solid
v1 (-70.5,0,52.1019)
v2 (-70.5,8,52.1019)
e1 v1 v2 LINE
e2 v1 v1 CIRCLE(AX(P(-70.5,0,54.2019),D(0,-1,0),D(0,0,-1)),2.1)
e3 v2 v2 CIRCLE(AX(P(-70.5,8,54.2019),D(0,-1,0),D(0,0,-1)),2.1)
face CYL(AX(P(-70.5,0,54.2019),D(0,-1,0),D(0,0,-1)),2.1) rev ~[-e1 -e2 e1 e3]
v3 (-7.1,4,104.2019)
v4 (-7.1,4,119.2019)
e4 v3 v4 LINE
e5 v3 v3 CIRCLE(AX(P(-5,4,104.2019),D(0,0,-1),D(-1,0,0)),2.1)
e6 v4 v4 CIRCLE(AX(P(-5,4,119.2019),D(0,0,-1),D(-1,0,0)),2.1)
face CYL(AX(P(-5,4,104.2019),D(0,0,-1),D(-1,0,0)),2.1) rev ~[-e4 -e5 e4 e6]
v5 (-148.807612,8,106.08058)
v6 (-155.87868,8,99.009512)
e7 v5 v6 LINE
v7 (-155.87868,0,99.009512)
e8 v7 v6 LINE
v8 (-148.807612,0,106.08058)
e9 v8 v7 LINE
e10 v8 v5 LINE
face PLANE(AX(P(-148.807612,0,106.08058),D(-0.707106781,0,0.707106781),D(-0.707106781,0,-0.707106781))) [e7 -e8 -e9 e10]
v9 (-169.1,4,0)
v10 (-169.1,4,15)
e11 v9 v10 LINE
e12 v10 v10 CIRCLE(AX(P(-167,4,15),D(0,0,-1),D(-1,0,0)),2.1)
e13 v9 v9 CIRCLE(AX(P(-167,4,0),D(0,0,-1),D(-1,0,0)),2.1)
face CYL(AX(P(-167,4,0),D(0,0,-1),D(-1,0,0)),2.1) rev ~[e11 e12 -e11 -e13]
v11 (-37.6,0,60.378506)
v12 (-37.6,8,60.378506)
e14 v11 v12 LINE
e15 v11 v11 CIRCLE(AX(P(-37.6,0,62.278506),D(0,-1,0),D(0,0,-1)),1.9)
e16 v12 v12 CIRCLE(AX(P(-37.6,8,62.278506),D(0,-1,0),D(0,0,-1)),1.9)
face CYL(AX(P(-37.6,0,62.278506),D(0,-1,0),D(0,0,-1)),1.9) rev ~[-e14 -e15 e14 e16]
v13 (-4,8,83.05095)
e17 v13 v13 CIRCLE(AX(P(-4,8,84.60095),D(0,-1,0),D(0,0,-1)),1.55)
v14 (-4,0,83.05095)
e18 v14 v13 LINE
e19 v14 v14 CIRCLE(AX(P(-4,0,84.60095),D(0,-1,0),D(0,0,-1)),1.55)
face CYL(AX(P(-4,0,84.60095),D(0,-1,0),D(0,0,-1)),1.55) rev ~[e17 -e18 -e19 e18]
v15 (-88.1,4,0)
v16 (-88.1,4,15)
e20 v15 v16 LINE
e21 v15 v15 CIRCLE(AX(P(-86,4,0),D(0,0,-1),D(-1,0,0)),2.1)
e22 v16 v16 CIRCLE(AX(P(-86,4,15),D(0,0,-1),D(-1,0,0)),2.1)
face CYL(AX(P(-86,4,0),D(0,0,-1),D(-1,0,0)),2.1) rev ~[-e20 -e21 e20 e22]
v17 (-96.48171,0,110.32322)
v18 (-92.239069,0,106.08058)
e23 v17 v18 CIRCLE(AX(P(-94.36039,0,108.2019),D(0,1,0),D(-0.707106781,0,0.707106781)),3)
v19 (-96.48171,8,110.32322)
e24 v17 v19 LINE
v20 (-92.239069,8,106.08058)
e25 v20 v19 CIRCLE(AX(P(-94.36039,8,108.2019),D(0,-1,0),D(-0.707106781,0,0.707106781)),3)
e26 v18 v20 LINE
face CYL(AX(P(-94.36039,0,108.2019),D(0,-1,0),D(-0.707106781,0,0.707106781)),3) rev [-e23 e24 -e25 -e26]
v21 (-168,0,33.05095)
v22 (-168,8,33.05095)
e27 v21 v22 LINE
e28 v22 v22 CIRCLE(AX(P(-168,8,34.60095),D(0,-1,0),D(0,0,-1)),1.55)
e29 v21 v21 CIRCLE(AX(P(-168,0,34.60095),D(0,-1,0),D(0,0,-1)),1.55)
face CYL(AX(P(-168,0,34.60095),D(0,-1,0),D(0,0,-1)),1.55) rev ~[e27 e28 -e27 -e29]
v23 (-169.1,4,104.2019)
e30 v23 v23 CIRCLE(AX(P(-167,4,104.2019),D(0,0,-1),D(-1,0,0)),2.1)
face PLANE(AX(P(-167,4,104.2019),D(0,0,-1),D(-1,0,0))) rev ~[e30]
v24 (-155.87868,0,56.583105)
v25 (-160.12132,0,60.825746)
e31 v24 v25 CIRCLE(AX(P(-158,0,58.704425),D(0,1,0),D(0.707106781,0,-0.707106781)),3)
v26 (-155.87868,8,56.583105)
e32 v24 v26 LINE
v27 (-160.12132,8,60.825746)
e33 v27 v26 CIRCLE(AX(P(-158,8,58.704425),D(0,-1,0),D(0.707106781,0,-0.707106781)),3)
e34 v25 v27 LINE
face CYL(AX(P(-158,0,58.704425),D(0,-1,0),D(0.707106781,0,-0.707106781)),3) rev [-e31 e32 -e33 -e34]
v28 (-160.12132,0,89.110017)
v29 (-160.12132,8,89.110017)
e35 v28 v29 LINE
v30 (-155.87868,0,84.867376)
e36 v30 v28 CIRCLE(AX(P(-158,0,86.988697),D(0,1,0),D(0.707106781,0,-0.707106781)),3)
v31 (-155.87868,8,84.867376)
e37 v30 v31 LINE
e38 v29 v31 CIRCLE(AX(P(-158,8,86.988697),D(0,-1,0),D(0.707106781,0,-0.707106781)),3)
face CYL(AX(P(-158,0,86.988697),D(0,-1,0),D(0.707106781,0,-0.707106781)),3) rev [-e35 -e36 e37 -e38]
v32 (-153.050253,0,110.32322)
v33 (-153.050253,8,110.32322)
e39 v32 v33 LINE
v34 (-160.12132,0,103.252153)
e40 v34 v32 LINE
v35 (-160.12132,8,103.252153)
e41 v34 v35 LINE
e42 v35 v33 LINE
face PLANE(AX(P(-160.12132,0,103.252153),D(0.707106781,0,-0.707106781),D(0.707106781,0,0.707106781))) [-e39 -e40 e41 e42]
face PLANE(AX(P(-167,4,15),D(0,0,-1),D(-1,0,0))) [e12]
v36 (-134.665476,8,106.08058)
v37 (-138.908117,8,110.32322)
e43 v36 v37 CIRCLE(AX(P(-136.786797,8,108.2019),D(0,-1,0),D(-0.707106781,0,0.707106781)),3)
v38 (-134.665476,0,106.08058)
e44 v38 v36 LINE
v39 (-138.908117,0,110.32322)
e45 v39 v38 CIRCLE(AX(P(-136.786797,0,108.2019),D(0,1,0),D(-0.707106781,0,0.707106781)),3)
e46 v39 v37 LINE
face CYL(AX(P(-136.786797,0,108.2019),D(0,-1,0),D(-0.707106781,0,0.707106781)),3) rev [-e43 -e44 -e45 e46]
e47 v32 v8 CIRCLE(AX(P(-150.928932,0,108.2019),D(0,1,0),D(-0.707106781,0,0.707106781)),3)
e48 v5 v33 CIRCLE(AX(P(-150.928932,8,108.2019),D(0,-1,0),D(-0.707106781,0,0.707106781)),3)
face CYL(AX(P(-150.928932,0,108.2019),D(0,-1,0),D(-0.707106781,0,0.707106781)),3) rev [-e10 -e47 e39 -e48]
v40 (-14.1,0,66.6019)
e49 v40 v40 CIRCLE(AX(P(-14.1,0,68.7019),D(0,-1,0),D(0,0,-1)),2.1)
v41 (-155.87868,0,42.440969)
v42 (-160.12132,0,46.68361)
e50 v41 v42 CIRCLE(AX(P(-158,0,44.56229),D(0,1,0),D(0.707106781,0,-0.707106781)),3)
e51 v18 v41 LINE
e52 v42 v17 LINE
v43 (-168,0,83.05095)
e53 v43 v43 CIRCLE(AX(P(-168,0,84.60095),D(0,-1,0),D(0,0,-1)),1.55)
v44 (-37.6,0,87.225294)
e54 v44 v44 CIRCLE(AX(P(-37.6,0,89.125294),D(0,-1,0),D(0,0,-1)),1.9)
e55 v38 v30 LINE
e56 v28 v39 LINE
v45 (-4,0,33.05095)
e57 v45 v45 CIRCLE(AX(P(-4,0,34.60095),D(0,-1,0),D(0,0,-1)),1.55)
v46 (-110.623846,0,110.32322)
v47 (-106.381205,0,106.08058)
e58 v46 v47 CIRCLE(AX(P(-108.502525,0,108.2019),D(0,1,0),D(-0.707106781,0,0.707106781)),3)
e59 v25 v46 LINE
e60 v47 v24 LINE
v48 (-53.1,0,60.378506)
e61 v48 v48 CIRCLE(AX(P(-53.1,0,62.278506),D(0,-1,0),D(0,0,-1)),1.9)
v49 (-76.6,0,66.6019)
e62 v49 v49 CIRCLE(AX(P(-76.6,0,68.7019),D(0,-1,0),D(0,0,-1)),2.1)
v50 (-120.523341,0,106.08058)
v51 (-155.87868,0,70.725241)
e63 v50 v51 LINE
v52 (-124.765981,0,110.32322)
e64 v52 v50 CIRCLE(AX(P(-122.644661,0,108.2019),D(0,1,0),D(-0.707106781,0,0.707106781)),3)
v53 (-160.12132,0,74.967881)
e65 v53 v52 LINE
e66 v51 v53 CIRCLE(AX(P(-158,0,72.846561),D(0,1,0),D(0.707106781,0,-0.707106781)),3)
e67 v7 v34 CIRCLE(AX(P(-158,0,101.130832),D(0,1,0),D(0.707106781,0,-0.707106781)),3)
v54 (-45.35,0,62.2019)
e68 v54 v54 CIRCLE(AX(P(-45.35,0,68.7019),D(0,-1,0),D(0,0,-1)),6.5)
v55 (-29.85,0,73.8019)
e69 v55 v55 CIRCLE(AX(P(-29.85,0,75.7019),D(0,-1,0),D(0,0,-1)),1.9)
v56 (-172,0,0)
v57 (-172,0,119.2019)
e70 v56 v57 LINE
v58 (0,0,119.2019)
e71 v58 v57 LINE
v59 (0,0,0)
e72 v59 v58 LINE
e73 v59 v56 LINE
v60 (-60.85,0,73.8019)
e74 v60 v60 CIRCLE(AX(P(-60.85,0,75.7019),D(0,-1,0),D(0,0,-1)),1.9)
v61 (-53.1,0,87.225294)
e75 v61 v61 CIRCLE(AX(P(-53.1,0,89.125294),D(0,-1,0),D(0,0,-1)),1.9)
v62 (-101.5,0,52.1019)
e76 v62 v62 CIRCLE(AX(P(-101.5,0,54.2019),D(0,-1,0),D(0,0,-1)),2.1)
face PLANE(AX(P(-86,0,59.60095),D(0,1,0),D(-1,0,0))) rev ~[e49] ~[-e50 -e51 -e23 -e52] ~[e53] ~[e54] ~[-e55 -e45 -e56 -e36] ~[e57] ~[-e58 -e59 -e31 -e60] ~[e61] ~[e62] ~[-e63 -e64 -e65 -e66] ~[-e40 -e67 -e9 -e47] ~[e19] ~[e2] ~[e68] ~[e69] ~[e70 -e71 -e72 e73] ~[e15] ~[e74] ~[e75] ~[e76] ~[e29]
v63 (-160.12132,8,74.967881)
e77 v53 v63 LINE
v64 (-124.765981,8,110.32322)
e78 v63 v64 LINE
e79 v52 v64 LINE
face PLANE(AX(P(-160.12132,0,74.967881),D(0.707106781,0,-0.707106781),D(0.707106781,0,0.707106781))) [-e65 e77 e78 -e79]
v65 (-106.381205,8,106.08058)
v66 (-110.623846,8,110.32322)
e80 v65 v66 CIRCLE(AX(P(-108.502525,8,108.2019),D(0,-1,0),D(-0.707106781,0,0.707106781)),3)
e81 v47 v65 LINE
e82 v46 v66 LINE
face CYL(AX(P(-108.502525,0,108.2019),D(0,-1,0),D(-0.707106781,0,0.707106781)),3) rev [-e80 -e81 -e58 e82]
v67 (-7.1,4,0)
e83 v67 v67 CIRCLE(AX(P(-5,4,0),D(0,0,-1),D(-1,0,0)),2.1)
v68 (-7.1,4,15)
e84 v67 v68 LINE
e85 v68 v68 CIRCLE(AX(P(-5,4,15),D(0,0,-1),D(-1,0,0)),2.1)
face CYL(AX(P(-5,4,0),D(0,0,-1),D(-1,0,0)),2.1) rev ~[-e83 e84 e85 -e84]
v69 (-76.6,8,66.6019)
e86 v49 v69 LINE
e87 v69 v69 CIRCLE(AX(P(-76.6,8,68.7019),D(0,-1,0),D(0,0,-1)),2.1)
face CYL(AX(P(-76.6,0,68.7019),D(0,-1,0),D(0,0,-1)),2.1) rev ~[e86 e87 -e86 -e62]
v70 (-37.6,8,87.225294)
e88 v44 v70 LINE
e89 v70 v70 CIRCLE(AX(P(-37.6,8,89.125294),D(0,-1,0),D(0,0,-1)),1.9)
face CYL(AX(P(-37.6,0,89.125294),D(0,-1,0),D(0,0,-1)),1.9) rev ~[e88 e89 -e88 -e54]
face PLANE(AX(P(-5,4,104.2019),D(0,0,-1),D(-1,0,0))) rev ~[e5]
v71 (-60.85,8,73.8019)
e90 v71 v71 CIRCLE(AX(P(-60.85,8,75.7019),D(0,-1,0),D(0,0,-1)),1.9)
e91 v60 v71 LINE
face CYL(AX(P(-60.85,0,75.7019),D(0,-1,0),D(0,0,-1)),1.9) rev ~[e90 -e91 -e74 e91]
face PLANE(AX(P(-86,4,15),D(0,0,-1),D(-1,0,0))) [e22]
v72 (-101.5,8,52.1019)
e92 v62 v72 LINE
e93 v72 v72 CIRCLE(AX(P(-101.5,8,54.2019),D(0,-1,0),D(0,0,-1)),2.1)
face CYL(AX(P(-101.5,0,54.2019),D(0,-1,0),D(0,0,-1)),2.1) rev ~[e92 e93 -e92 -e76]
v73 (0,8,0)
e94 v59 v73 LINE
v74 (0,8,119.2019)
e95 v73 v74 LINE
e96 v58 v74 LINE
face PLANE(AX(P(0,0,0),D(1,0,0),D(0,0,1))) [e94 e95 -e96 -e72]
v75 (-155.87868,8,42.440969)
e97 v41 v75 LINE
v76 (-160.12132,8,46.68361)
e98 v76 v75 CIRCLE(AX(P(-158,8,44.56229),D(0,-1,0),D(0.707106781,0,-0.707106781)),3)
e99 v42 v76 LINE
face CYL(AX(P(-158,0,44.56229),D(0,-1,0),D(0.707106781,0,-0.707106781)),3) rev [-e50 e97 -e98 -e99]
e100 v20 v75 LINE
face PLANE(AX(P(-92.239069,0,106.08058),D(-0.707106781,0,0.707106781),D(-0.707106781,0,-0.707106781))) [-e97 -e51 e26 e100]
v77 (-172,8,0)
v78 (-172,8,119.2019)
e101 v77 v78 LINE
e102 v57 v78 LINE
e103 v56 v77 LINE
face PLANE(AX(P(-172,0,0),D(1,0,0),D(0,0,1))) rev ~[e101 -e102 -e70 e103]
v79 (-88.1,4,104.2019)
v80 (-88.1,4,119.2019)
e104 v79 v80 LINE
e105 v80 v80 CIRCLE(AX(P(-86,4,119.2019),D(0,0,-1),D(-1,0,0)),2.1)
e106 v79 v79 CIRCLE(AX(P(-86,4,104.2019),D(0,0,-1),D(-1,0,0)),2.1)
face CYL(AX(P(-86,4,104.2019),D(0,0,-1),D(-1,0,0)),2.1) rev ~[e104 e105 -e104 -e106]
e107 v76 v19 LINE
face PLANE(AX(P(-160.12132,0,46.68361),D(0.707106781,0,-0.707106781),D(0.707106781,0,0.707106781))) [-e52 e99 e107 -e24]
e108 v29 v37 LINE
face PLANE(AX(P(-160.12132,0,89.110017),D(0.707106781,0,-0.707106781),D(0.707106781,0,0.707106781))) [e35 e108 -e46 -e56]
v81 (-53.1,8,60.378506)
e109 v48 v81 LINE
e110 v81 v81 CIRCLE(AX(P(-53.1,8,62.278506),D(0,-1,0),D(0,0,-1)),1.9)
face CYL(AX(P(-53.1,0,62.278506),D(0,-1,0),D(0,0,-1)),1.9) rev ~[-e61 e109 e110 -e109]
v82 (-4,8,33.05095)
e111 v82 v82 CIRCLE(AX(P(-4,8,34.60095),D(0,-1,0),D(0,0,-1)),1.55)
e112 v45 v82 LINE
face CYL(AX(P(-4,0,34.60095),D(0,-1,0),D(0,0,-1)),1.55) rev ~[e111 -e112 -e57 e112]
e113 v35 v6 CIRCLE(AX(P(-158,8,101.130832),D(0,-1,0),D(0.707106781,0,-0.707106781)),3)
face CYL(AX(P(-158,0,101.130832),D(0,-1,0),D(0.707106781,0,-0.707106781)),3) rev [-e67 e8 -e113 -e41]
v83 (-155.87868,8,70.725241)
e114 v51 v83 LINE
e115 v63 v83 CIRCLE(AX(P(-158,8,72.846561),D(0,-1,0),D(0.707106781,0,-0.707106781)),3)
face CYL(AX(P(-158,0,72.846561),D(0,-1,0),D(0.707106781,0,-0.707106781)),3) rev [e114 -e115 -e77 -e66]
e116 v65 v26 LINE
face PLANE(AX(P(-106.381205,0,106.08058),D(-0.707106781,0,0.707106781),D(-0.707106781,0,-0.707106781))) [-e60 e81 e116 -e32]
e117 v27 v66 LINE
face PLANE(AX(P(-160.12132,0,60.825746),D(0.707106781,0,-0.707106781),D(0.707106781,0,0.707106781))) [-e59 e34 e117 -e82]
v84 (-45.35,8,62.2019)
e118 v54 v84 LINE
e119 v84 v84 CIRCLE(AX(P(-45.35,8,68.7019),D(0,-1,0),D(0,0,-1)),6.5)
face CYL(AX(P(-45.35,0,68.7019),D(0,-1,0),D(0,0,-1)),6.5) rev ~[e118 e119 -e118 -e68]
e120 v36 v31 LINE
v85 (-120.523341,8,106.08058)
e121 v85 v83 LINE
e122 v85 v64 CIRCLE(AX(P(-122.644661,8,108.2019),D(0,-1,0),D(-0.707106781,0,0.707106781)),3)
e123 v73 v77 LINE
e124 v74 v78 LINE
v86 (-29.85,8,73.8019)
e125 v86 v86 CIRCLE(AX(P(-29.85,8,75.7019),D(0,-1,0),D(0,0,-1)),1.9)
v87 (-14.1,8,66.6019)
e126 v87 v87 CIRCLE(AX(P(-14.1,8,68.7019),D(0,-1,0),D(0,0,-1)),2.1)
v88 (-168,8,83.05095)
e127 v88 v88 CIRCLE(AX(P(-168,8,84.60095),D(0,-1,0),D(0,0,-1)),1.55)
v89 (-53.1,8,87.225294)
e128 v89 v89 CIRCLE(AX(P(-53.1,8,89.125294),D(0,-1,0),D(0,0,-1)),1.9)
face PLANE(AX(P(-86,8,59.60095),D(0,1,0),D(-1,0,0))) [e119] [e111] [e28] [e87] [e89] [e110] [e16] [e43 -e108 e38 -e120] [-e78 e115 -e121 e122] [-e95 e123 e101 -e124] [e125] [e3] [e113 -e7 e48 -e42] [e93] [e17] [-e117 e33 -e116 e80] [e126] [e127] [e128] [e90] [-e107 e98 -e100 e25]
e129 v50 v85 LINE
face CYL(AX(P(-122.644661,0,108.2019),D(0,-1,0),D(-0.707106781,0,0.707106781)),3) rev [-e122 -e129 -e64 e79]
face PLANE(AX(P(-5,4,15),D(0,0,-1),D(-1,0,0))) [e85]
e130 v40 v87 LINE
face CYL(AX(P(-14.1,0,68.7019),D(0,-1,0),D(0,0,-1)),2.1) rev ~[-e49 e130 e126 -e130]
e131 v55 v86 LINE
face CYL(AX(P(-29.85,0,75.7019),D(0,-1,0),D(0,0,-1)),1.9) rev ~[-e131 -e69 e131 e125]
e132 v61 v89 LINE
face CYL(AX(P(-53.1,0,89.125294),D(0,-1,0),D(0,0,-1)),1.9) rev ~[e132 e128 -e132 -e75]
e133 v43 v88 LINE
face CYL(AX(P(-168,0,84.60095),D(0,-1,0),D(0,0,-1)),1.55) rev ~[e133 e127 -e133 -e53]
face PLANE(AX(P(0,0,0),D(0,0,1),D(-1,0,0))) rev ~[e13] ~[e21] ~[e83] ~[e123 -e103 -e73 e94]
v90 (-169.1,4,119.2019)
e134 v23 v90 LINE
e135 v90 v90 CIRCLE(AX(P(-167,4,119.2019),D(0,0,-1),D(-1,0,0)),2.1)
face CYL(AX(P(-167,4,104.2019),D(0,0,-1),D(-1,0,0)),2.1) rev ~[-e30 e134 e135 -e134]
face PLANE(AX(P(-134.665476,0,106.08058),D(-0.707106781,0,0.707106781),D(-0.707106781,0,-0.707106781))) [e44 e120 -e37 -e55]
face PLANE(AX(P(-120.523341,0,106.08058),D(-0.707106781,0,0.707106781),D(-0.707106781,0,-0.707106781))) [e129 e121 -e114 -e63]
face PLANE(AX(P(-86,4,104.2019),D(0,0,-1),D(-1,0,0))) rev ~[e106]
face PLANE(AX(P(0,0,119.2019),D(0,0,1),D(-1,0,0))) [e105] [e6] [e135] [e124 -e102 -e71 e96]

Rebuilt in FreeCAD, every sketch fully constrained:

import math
import FreeCAD as App
import Part
import Sketcher
from FreeCAD import Vector
Q = App.Units.Quantity

doc = App.newDocument("Part")
body = doc.addObject("PartDesign::Body", "Body")

sketch1 = body.newObject("Sketcher::SketchObject", "Sketch")
sketch1.AttachmentSupport = (doc.getObject("XZ_Plane"), [""])
sketch1.MapMode = "FlatFace"
sketch1.addGeometry([
    Part.LineSegment(Vector(0, 119, 0), Vector(0, 0, 0)),
    Part.LineSegment(Vector(0, 0, 0), Vector(-172, 0, 0)),
    Part.LineSegment(Vector(-172, 0, 0), Vector(-172, 119, 0)),
    Part.LineSegment(Vector(-172, 119, 0), Vector(0, 119, 0)),
], False)
sketch1.addConstraint([
    Sketcher.Constraint("Coincident", 0, 2, 1, 1),
    Sketcher.Constraint("Coincident", 1, 2, 2, 1),
    Sketcher.Constraint("Coincident", 2, 2, 3, 1),
    Sketcher.Constraint("Coincident", 3, 2, 0, 1),
    Sketcher.Constraint("Vertical", 0),
    Sketcher.Constraint("Horizontal", 1),
    Sketcher.Constraint("Vertical", 2),
    Sketcher.Constraint("Horizontal", 3),
    Sketcher.Constraint("Coincident", 0, 2, -1, 1),
    Sketcher.Constraint("DistanceX", 1, 2, 1, 1, Q("172 mm")),
    Sketcher.Constraint("DistanceY", 0, 2, 0, 1, Q("119.2019 mm")),
])
pad1 = body.newObject("PartDesign::Pad", "Pad")
pad1.Profile = sketch1
pad1.Length = 8
pad1.Reversed = True

sketch2 = body.newObject("Sketcher::SketchObject", "Sketch001")
sketch2.AttachmentSupport = (doc.getObject("XZ_Plane"), [""])
sketch2.MapMode = "FlatFace"
sketch2.addGeometry(Part.Circle(Vector(-45, 69, 0), Vector(0, 0, 1), 6), False)
sketch2.addConstraint([
    Sketcher.Constraint("Diameter", 0, Q("13 mm")),
    Sketcher.Constraint("DistanceX", 0, 3, -1, 1, Q("45.35 mm")),
    Sketcher.Constraint("DistanceY", -1, 1, 0, 3, Q("68.7019 mm")),
])
pocket1 = body.newObject("PartDesign::Pocket", "Pocket")
pocket1.Profile = sketch2
pocket1.Type = "UpToFirst"

sketch3 = body.newObject("Sketcher::SketchObject", "Sketch002")
sketch3.AttachmentSupport = (doc.getObject("XZ_Plane"), [""])
sketch3.MapMode = "FlatFace"
sketch3.addGeometry(Part.Circle(Vector(-60.9, 75.7, 0), Vector(0, 0, 1), 1.9), False)
sketch3.addConstraint([
    Sketcher.Constraint("Diameter", 0, Q("3.8 mm")),
    Sketcher.Constraint("DistanceX", 0, 3, -1, 1, Q("60.85 mm")),
    Sketcher.Constraint("DistanceY", -1, 1, 0, 3, Q("75.7019 mm")),
])
pocket2 = body.newObject("PartDesign::Pocket", "Pocket001")
pocket2.Profile = sketch3
pocket2.Type = "UpToFirst"

sketch4 = body.newObject("Sketcher::SketchObject", "Sketch003")
sketch4.AttachmentSupport = (doc.getObject("XZ_Plane"), [""])
sketch4.MapMode = "FlatFace"
sketch4.addGeometry(Part.Circle(Vector(-53.1, 89.1, 0), Vector(0, 0, 1), 1.9), False)
sketch4.addConstraint([
    Sketcher.Constraint("Diameter", 0, Q("3.8 mm")),
    Sketcher.Constraint("DistanceX", 0, 3, -1, 1, Q("53.1 mm")),
    Sketcher.Constraint("DistanceY", -1, 1, 0, 3, Q("89.125294 mm")),
])
pocket3 = body.newObject("PartDesign::Pocket", "Pocket002")
pocket3.Profile = sketch4
pocket3.Type = "UpToFirst"

sketch5 = body.newObject("Sketcher::SketchObject", "Sketch004")
sketch5.AttachmentSupport = (doc.getObject("XZ_Plane"), [""])
sketch5.MapMode = "FlatFace"
sketch5.addGeometry(Part.Circle(Vector(-37.6, 89.1, 0), Vector(0, 0, 1), 1.9), False)
sketch5.addConstraint([
    Sketcher.Constraint("Diameter", 0, Q("3.8 mm")),
    Sketcher.Constraint("DistanceX", 0, 3, -1, 1, Q("37.6 mm")),
    Sketcher.Constraint("DistanceY", -1, 1, 0, 3, Q("89.125294 mm")),
])
pocket4 = body.newObject("PartDesign::Pocket", "Pocket003")
pocket4.Profile = sketch5
pocket4.Type = "UpToFirst"

sketch6 = body.newObject("Sketcher::SketchObject", "Sketch005")
sketch6.AttachmentSupport = (doc.getObject("XZ_Plane"), [""])
sketch6.MapMode = "FlatFace"
sketch6.addGeometry(Part.Circle(Vector(-29.9, 75.7, 0), Vector(0, 0, 1), 1.9), False)
sketch6.addConstraint([
    Sketcher.Constraint("Diameter", 0, Q("3.8 mm")),
    Sketcher.Constraint("DistanceX", 0, 3, -1, 1, Q("29.85 mm")),
    Sketcher.Constraint("DistanceY", -1, 1, 0, 3, Q("75.7019 mm")),
])
pocket5 = body.newObject("PartDesign::Pocket", "Pocket004")
pocket5.Profile = sketch6
pocket5.Type = "UpToFirst"

sketch7 = body.newObject("Sketcher::SketchObject", "Sketch006")
sketch7.AttachmentSupport = (doc.getObject("XZ_Plane"), [""])
sketch7.MapMode = "FlatFace"
sketch7.addGeometry(Part.Circle(Vector(-37.6, 62.3, 0), Vector(0, 0, 1), 1.9), False)
sketch7.addConstraint([
    Sketcher.Constraint("Diameter", 0, Q("3.8 mm")),
    Sketcher.Constraint("DistanceX", 0, 3, -1, 1, Q("37.6 mm")),
    Sketcher.Constraint("DistanceY", -1, 1, 0, 3, Q("62.278506 mm")),
])
pocket6 = body.newObject("PartDesign::Pocket", "Pocket005")
pocket6.Profile = sketch7
pocket6.Type = "UpToFirst"

sketch8 = body.newObject("Sketcher::SketchObject", "Sketch007")
sketch8.AttachmentSupport = (doc.getObject("XZ_Plane"), [""])
sketch8.MapMode = "FlatFace"
sketch8.addGeometry(Part.Circle(Vector(-53.1, 62.3, 0), Vector(0, 0, 1), 1.9), False)
sketch8.addConstraint([
    Sketcher.Constraint("Diameter", 0, Q("3.8 mm")),
    Sketcher.Constraint("DistanceX", 0, 3, -1, 1, Q("53.1 mm")),
    Sketcher.Constraint("DistanceY", -1, 1, 0, 3, Q("62.278506 mm")),
])
pocket7 = body.newObject("PartDesign::Pocket", "Pocket006")
pocket7.Profile = sketch8
pocket7.Type = "UpToFirst"

sketch9 = body.newObject("Sketcher::SketchObject", "Sketch008")
sketch9.AttachmentSupport = (doc.getObject("XZ_Plane"), [""])
sketch9.MapMode = "FlatFace"
sketch9.addGeometry(Part.Circle(Vector(-76.6, 68.7, 0), Vector(0, 0, 1), 2.1), False)
sketch9.addConstraint([
    Sketcher.Constraint("Diameter", 0, Q("4.2 mm")),
    Sketcher.Constraint("DistanceX", 0, 3, -1, 1, Q("76.6 mm")),
    Sketcher.Constraint("DistanceY", -1, 1, 0, 3, Q("68.7019 mm")),
])
pocket8 = body.newObject("PartDesign::Pocket", "Pocket007")
pocket8.Profile = sketch9
pocket8.Type = "UpToFirst"

sketch10 = body.newObject("Sketcher::SketchObject", "Sketch009")
sketch10.AttachmentSupport = (doc.getObject("XZ_Plane"), [""])
sketch10.MapMode = "FlatFace"
sketch10.addGeometry(Part.Circle(Vector(-14.1, 68.7, 0), Vector(0, 0, 1), 2.1), False)
sketch10.addConstraint([
    Sketcher.Constraint("Diameter", 0, Q("4.2 mm")),
    Sketcher.Constraint("DistanceX", 0, 3, -1, 1, Q("14.1 mm")),
    Sketcher.Constraint("DistanceY", -1, 1, 0, 3, Q("68.7019 mm")),
])
pocket9 = body.newObject("PartDesign::Pocket", "Pocket008")
pocket9.Profile = sketch10
pocket9.Type = "UpToFirst"

sketch11 = body.newObject("Sketcher::SketchObject", "Sketch010")
sketch11.AttachmentSupport = (doc.getObject("XZ_Plane"), [""])
sketch11.MapMode = "FlatFace"
sketch11.addGeometry(Part.Circle(Vector(-70.5, 54.2, 0), Vector(0, 0, 1), 2.1), False)
sketch11.addConstraint([
    Sketcher.Constraint("Diameter", 0, Q("4.2 mm")),
    Sketcher.Constraint("DistanceX", 0, 3, -1, 1, Q("70.5 mm")),
    Sketcher.Constraint("DistanceY", -1, 1, 0, 3, Q("54.2019 mm")),
])
pocket10 = body.newObject("PartDesign::Pocket", "Pocket009")
pocket10.Profile = sketch11
pocket10.Type = "UpToFirst"

sketch12 = body.newObject("Sketcher::SketchObject", "Sketch011")
sketch12.AttachmentSupport = (doc.getObject("XZ_Plane"), [""])
sketch12.MapMode = "FlatFace"
sketch12.addGeometry(Part.Circle(Vector(-101.5, 54.2, 0), Vector(0, 0, 1), 2.1), False)
sketch12.addConstraint([
    Sketcher.Constraint("Diameter", 0, Q("4.2 mm")),
    Sketcher.Constraint("DistanceX", 0, 3, -1, 1, Q("101.5 mm")),
    Sketcher.Constraint("DistanceY", -1, 1, 0, 3, Q("54.2019 mm")),
])
pocket11 = body.newObject("PartDesign::Pocket", "Pocket010")
pocket11.Profile = sketch12
pocket11.Type = "UpToFirst"

sketch13 = body.newObject("Sketcher::SketchObject", "Sketch012")
sketch13.AttachmentSupport = (doc.getObject("XZ_Plane"), [""])
sketch13.MapMode = "FlatFace"
sketch13.addGeometry([
    Part.LineSegment(Vector(-138.9, 110.3, 0), Vector(-160.1, 89.1, 0)),
    Part.ArcOfCircle(Part.Circle(Vector(-158, 87, 0), Vector(0, 0, 1), 3), math.radians(135), math.radians(315)),
    Part.LineSegment(Vector(-155.9, 84.9, 0), Vector(-134.7, 106.1, 0)),
    Part.ArcOfCircle(Part.Circle(Vector(-136.8, 108.2, 0), Vector(0, 0, 1), 3), math.radians(-45), math.radians(135)),
], False)
sketch13.addConstraint([
    Sketcher.Constraint("Tangent", 0, 2, 1, 1),
    Sketcher.Constraint("Tangent", 1, 2, 2, 1),
    Sketcher.Constraint("Tangent", 2, 2, 3, 1),
    Sketcher.Constraint("Tangent", 3, 2, 0, 1),
    Sketcher.Constraint("Equal", 1, 3),
    Sketcher.Constraint("Radius", 1, Q("3 mm")),
    Sketcher.Constraint("Angle", 0, Q("-135 deg")),
    Sketcher.Constraint("Distance", 0, Q("30 mm")),
    Sketcher.Constraint("DistanceX", 1, 3, -1, 1, Q("158 mm")),
    Sketcher.Constraint("DistanceY", -1, 1, 3, 3, Q("108.2019 mm")),
])
pocket12 = body.newObject("PartDesign::Pocket", "Pocket011")
pocket12.Profile = sketch13
pocket12.Type = "UpToFirst"

sketch14 = body.newObject("Sketcher::SketchObject", "Sketch013")
sketch14.AttachmentSupport = (doc.getObject("XZ_Plane"), [""])
sketch14.MapMode = "FlatFace"
sketch14.addGeometry([
    Part.LineSegment(Vector(-124.8, 110.3, 0), Vector(-160.1, 75, 0)),
    Part.ArcOfCircle(Part.Circle(Vector(-158, 72.8, 0), Vector(0, 0, 1), 3), math.radians(135), math.radians(315)),
    Part.LineSegment(Vector(-155.9, 70.7, 0), Vector(-120.5, 106.1, 0)),
    Part.ArcOfCircle(Part.Circle(Vector(-122.6, 108.2, 0), Vector(0, 0, 1), 3), math.radians(-45), math.radians(135)),
], False)
sketch14.addConstraint([
    Sketcher.Constraint("Tangent", 0, 2, 1, 1),
    Sketcher.Constraint("Tangent", 1, 2, 2, 1),
    Sketcher.Constraint("Tangent", 2, 2, 3, 1),
    Sketcher.Constraint("Tangent", 3, 2, 0, 1),
    Sketcher.Constraint("Equal", 1, 3),
    Sketcher.Constraint("Radius", 1, Q("3 mm")),
    Sketcher.Constraint("Angle", 0, Q("-135 deg")),
    Sketcher.Constraint("Distance", 0, Q("50 mm")),
    Sketcher.Constraint("DistanceX", 1, 3, -1, 1, Q("158 mm")),
    Sketcher.Constraint("DistanceY", -1, 1, 3, 3, Q("108.2019 mm")),
])
pocket13 = body.newObject("PartDesign::Pocket", "Pocket012")
pocket13.Profile = sketch14
pocket13.Type = "UpToFirst"

sketch15 = body.newObject("Sketcher::SketchObject", "Sketch014")
sketch15.AttachmentSupport = (doc.getObject("XZ_Plane"), [""])
sketch15.MapMode = "FlatFace"
sketch15.addGeometry([
    Part.LineSegment(Vector(-110.6, 110.3, 0), Vector(-160.1, 60.8, 0)),
    Part.ArcOfCircle(Part.Circle(Vector(-158, 58.7, 0), Vector(0, 0, 1), 3), math.radians(135), math.radians(315)),
    Part.LineSegment(Vector(-155.9, 56.6, 0), Vector(-106.4, 106.1, 0)),
    Part.ArcOfCircle(Part.Circle(Vector(-108.5, 108.2, 0), Vector(0, 0, 1), 3), math.radians(-45), math.radians(135)),
], False)
sketch15.addConstraint([
    Sketcher.Constraint("Tangent", 0, 2, 1, 1),
    Sketcher.Constraint("Tangent", 1, 2, 2, 1),
    Sketcher.Constraint("Tangent", 2, 2, 3, 1),
    Sketcher.Constraint("Tangent", 3, 2, 0, 1),
    Sketcher.Constraint("Equal", 1, 3),
    Sketcher.Constraint("Radius", 1, Q("3 mm")),
    Sketcher.Constraint("Angle", 0, Q("-135 deg")),
    Sketcher.Constraint("Distance", 0, Q("70 mm")),
    Sketcher.Constraint("DistanceX", 1, 3, -1, 1, Q("158 mm")),
    Sketcher.Constraint("DistanceY", -1, 1, 3, 3, Q("108.2019 mm")),
])
pocket14 = body.newObject("PartDesign::Pocket", "Pocket013")
pocket14.Profile = sketch15
pocket14.Type = "UpToFirst"

sketch16 = body.newObject("Sketcher::SketchObject", "Sketch015")
sketch16.AttachmentSupport = (doc.getObject("XZ_Plane"), [""])
sketch16.MapMode = "FlatFace"
sketch16.addGeometry([
    Part.LineSegment(Vector(-96.5, 110.3, 0), Vector(-160.1, 46.7, 0)),
    Part.ArcOfCircle(Part.Circle(Vector(-158, 44.6, 0), Vector(0, 0, 1), 3), math.radians(135), math.radians(315)),
    Part.LineSegment(Vector(-155.9, 42.4, 0), Vector(-92.2, 106.1, 0)),
    Part.ArcOfCircle(Part.Circle(Vector(-94.4, 108.2, 0), Vector(0, 0, 1), 3), math.radians(-45), math.radians(135)),
], False)
sketch16.addConstraint([
    Sketcher.Constraint("Tangent", 0, 2, 1, 1),
    Sketcher.Constraint("Tangent", 1, 2, 2, 1),
    Sketcher.Constraint("Tangent", 2, 2, 3, 1),
    Sketcher.Constraint("Tangent", 3, 2, 0, 1),
    Sketcher.Constraint("Equal", 1, 3),
    Sketcher.Constraint("Radius", 1, Q("3 mm")),
    Sketcher.Constraint("Angle", 0, Q("-135 deg")),
    Sketcher.Constraint("Distance", 0, Q("90 mm")),
    Sketcher.Constraint("DistanceX", 1, 3, -1, 1, Q("158 mm")),
    Sketcher.Constraint("DistanceY", -1, 1, 3, 3, Q("108.2019 mm")),
])
pocket15 = body.newObject("PartDesign::Pocket", "Pocket014")
pocket15.Profile = sketch16
pocket15.Type = "UpToFirst"

sketch17 = body.newObject("Sketcher::SketchObject", "Sketch016")
sketch17.AttachmentSupport = (doc.getObject("XZ_Plane"), [""])
sketch17.MapMode = "FlatFace"
sketch17.addGeometry([
    Part.LineSegment(Vector(-153.1, 110.3, 0), Vector(-160.1, 103.3, 0)),
    Part.ArcOfCircle(Part.Circle(Vector(-158, 101.1, 0), Vector(0, 0, 1), 3), math.radians(135), math.radians(315)),
    Part.LineSegment(Vector(-155.9, 99, 0), Vector(-148.8, 106.1, 0)),
    Part.ArcOfCircle(Part.Circle(Vector(-150.9, 108.2, 0), Vector(0, 0, 1), 3), math.radians(-45), math.radians(135)),
], False)
sketch17.addConstraint([
    Sketcher.Constraint("Tangent", 0, 2, 1, 1),
    Sketcher.Constraint("Tangent", 1, 2, 2, 1),
    Sketcher.Constraint("Tangent", 2, 2, 3, 1),
    Sketcher.Constraint("Tangent", 3, 2, 0, 1),
    Sketcher.Constraint("Equal", 1, 3),
    Sketcher.Constraint("Radius", 1, Q("3 mm")),
    Sketcher.Constraint("Angle", 0, Q("-135 deg")),
    Sketcher.Constraint("Distance", 0, Q("10 mm")),
    Sketcher.Constraint("DistanceX", 1, 3, -1, 1, Q("158 mm")),
    Sketcher.Constraint("DistanceY", -1, 1, 3, 3, Q("108.2019 mm")),
])
pocket16 = body.newObject("PartDesign::Pocket", "Pocket015")
pocket16.Profile = sketch17
pocket16.Type = "UpToFirst"

sketch18 = body.newObject("Sketcher::SketchObject", "Sketch017")
sketch18.AttachmentSupport = (doc.getObject("XY_Plane"), [""])
sketch18.MapMode = "FlatFace"
sketch18.addGeometry([
    Part.Circle(Vector(-5, 4, 0), Vector(0, 0, 1), 2.1),
    Part.Circle(Vector(-167, 4, 0), Vector(0, 0, 1), 2.1),
    Part.Circle(Vector(-86, 4, 0), Vector(0, 0, 1), 2.1),
], False)
sketch18.addConstraint([
    Sketcher.Constraint("Equal", 0, 1),
    Sketcher.Constraint("Equal", 1, 2),
    Sketcher.Constraint("Horizontal", 0, 3, 1, 3),
    Sketcher.Constraint("Horizontal", 1, 3, 2, 3),
    Sketcher.Constraint("Diameter", 0, Q("4.2 mm")),
    Sketcher.Constraint("DistanceX", 0, 3, -1, 1, Q("5 mm")),
    Sketcher.Constraint("DistanceY", -1, 1, 0, 3, Q("4 mm")),
    Sketcher.Constraint("DistanceX", 1, 3, -1, 1, Q("167 mm")),
    Sketcher.Constraint("DistanceX", 2, 3, -1, 1, Q("86 mm")),
])
pocket17 = body.newObject("PartDesign::Pocket", "Pocket016")
pocket17.Profile = sketch18
pocket17.Length = 15
pocket17.Reversed = True

sketch19 = body.newObject("Sketcher::SketchObject", "Sketch018")
sketch19.AttachmentSupport = (doc.getObject("XY_Plane"), [""])
sketch19.MapMode = "FlatFace"
sketch19.AttachmentOffset = App.Placement(Vector(0, 0, 104.2019), App.Rotation())
sketch19.addGeometry([
    Part.Circle(Vector(-5, 4, 0), Vector(0, 0, 1), 2.1),
    Part.Circle(Vector(-167, 4, 0), Vector(0, 0, 1), 2.1),
    Part.Circle(Vector(-86, 4, 0), Vector(0, 0, 1), 2.1),
], False)
sketch19.addConstraint([
    Sketcher.Constraint("Equal", 0, 1),
    Sketcher.Constraint("Equal", 1, 2),
    Sketcher.Constraint("Horizontal", 0, 3, 1, 3),
    Sketcher.Constraint("Horizontal", 1, 3, 2, 3),
    Sketcher.Constraint("Diameter", 0, Q("4.2 mm")),
    Sketcher.Constraint("DistanceX", 0, 3, -1, 1, Q("5 mm")),
    Sketcher.Constraint("DistanceY", -1, 1, 0, 3, Q("4 mm")),
    Sketcher.Constraint("DistanceX", 1, 3, -1, 1, Q("167 mm")),
    Sketcher.Constraint("DistanceX", 2, 3, -1, 1, Q("86 mm")),
])
pocket18 = body.newObject("PartDesign::Pocket", "Pocket017")
pocket18.Profile = sketch19
pocket18.Length = 15
pocket18.Reversed = True

sketch20 = body.newObject("Sketcher::SketchObject", "Sketch019")
sketch20.AttachmentSupport = (doc.getObject("XZ_Plane"), [""])
sketch20.MapMode = "FlatFace"
sketch20.addGeometry(Part.Circle(Vector(-168, 84.6, 0), Vector(0, 0, 1), 1.6), False)
sketch20.addConstraint([
    Sketcher.Constraint("Diameter", 0, Q("3.1 mm")),
    Sketcher.Constraint("DistanceX", 0, 3, -1, 1, Q("168 mm")),
    Sketcher.Constraint("DistanceY", -1, 1, 0, 3, Q("84.60095 mm")),
])
pocket19 = body.newObject("PartDesign::Pocket", "Pocket018")
pocket19.Profile = sketch20
pocket19.Type = "UpToFirst"

sketch21 = body.newObject("Sketcher::SketchObject", "Sketch020")
sketch21.AttachmentSupport = (doc.getObject("XZ_Plane"), [""])
sketch21.MapMode = "FlatFace"
sketch21.addGeometry(Part.Circle(Vector(-168, 34.6, 0), Vector(0, 0, 1), 1.6), False)
sketch21.addConstraint([
    Sketcher.Constraint("Diameter", 0, Q("3.1 mm")),
    Sketcher.Constraint("DistanceX", 0, 3, -1, 1, Q("168 mm")),
    Sketcher.Constraint("DistanceY", -1, 1, 0, 3, Q("34.60095 mm")),
])
pocket20 = body.newObject("PartDesign::Pocket", "Pocket019")
pocket20.Profile = sketch21
pocket20.Type = "UpToFirst"

sketch22 = body.newObject("Sketcher::SketchObject", "Sketch021")
sketch22.AttachmentSupport = (doc.getObject("XZ_Plane"), [""])
sketch22.MapMode = "FlatFace"
sketch22.addGeometry(Part.Circle(Vector(-4, 34.6, 0), Vector(0, 0, 1), 1.6), False)
sketch22.addConstraint([
    Sketcher.Constraint("Diameter", 0, Q("3.1 mm")),
    Sketcher.Constraint("DistanceX", 0, 3, -1, 1, Q("4 mm")),
    Sketcher.Constraint("DistanceY", -1, 1, 0, 3, Q("34.60095 mm")),
])
pocket21 = body.newObject("PartDesign::Pocket", "Pocket020")
pocket21.Profile = sketch22
pocket21.Type = "UpToFirst"

sketch23 = body.newObject("Sketcher::SketchObject", "Sketch022")
sketch23.AttachmentSupport = (doc.getObject("XZ_Plane"), [""])
sketch23.MapMode = "FlatFace"
sketch23.addGeometry(Part.Circle(Vector(-4, 84.6, 0), Vector(0, 0, 1), 1.6), False)
sketch23.addConstraint([
    Sketcher.Constraint("Diameter", 0, Q("3.1 mm")),
    Sketcher.Constraint("DistanceX", 0, 3, -1, 1, Q("4 mm")),
    Sketcher.Constraint("DistanceY", -1, 1, 0, 3, Q("84.60095 mm")),
])
pocket22 = body.newObject("PartDesign::Pocket", "Pocket021")
pocket22.Profile = sketch23
pocket22.Type = "UpToFirst"

doc.recompute()
